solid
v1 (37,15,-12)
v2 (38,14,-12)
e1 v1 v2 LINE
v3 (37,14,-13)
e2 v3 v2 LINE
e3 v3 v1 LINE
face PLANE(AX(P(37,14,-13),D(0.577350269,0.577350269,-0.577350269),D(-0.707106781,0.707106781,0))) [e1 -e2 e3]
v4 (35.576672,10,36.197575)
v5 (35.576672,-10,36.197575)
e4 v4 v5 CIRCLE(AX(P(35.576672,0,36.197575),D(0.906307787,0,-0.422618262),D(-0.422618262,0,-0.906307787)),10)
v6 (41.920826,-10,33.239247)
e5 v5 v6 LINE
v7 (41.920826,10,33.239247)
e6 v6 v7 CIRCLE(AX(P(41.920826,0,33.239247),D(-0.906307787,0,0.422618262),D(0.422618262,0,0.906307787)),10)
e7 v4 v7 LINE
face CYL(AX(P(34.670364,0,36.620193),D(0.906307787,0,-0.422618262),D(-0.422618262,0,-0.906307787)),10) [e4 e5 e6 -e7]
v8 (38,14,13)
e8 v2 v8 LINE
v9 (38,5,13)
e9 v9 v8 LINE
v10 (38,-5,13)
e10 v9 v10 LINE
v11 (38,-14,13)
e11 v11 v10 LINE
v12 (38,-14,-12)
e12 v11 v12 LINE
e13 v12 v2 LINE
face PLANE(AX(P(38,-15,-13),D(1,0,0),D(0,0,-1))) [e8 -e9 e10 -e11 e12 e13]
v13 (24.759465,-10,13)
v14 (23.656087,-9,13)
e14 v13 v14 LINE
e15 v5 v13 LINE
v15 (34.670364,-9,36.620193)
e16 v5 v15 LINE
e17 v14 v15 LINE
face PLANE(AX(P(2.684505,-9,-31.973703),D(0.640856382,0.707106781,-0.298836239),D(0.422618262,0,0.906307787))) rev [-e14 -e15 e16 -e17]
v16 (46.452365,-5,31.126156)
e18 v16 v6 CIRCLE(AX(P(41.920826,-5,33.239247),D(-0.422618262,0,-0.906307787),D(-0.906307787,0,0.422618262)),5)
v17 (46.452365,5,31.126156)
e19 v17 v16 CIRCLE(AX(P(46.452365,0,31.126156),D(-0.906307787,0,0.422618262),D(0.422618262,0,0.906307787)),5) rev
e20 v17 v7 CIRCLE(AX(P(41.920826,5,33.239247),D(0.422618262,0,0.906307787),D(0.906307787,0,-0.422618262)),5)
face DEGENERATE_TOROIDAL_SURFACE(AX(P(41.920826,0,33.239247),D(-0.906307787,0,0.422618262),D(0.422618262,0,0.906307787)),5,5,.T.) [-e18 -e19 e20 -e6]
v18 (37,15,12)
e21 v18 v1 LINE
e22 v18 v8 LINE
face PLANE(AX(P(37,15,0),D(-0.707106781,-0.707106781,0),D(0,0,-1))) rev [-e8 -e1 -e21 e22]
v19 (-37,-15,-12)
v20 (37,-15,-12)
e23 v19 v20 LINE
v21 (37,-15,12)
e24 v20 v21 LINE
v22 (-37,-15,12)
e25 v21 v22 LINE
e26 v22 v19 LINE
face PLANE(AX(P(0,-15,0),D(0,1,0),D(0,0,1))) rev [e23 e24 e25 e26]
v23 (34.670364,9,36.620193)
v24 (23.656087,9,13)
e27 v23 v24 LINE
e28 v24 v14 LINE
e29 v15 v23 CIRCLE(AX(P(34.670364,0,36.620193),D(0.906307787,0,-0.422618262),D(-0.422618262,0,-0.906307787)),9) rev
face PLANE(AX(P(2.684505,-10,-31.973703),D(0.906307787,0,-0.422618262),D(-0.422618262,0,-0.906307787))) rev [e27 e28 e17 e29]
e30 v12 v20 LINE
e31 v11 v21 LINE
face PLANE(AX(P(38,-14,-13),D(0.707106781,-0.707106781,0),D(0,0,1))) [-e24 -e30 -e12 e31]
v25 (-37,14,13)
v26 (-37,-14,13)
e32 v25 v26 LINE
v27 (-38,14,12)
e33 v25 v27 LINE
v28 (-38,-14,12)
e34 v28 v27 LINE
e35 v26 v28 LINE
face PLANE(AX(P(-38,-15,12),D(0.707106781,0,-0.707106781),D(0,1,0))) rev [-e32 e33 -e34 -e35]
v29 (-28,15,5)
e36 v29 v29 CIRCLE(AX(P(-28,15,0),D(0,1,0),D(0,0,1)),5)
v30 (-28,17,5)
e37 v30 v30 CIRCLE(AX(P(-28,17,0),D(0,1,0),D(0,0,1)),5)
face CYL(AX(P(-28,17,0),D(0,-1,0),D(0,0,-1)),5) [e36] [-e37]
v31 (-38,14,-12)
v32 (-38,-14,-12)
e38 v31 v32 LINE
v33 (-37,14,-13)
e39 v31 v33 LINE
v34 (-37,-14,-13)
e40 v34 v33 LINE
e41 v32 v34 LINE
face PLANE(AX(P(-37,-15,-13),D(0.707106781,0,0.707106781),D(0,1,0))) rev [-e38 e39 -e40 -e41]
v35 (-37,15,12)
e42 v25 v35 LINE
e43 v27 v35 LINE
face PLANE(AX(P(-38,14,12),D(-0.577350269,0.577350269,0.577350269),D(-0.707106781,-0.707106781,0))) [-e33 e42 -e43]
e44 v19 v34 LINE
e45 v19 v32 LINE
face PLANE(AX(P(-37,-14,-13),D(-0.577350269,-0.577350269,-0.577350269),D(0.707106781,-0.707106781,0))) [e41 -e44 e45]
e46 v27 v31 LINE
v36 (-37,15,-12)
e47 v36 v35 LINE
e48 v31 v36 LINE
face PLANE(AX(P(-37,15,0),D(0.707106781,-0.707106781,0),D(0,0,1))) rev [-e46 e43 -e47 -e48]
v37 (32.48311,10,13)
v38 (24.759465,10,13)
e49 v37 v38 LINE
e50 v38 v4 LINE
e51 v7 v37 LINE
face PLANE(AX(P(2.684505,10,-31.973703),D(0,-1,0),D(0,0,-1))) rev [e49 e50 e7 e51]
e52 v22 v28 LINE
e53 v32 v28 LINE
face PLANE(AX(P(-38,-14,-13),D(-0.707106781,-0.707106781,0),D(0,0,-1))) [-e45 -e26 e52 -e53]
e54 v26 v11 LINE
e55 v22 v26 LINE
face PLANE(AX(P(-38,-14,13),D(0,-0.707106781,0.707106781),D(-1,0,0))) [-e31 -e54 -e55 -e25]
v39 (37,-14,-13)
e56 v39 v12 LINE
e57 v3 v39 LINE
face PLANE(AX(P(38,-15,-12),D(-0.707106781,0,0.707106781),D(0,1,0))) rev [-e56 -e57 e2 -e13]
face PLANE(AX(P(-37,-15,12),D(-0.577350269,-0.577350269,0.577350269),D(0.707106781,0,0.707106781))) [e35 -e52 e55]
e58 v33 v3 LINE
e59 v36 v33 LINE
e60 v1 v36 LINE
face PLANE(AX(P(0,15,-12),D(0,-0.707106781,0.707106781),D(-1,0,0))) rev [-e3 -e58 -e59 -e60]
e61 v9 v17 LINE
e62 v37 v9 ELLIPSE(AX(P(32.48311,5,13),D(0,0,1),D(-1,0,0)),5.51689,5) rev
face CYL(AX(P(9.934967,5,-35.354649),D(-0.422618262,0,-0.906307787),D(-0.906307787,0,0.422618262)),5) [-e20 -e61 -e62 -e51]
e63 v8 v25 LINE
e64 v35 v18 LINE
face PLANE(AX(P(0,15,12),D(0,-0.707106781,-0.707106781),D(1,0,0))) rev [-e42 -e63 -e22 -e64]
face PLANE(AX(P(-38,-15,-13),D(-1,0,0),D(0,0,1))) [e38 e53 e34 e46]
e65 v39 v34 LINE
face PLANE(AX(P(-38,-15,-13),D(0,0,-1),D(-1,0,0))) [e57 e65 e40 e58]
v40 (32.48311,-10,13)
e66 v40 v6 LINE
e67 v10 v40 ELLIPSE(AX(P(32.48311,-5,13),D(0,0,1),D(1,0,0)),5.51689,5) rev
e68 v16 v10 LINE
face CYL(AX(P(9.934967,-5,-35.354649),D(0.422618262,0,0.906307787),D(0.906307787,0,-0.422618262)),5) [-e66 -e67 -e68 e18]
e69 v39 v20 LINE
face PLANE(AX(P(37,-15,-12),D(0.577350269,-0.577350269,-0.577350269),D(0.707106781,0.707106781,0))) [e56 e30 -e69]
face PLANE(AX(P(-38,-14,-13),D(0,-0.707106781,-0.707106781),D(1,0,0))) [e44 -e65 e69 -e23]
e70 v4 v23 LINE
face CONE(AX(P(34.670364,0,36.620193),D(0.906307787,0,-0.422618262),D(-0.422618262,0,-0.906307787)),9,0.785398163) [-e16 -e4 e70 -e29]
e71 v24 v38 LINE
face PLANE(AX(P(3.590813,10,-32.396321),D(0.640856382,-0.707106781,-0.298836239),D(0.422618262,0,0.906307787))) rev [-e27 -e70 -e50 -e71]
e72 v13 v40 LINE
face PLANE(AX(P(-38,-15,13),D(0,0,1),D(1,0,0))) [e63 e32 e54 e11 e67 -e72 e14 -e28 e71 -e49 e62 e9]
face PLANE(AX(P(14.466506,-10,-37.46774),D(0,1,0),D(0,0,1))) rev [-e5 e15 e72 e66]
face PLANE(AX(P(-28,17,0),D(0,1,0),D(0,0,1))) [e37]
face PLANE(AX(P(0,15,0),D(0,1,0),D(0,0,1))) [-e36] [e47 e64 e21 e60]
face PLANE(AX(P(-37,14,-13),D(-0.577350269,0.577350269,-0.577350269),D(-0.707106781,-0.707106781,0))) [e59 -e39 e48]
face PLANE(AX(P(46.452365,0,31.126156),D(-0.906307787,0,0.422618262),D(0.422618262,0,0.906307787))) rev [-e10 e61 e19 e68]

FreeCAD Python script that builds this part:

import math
import FreeCAD as App
import Part
import Sketcher

V = App.Vector
Q = App.Units.Quantity


def edges_at(feature, points):
    """Names of the edges that pass closest to the given points."""
    edges = feature.Shape.Edges
    near = lambda p: min(range(len(edges)), key=lambda i: edges[i].distToShape(Part.Vertex(*p))[0])
    return sorted({f"Edge{near(p) + 1}" for p in points})

doc = App.newDocument("Part")
params = doc.addObject("Spreadsheet::Sheet", "Params")
for row, (alias, value) in enumerate([
    ("sketch1_width", "76 mm"),
    ("sketch1_height", "26 mm"),
    ("pad1_length", "15 mm"),
    ("pad1_length2", "15 mm"),
    ("sketch2_radius", "10 mm"),
    ("pad2_length", "13 mm"),
    ("sketch3_width", "13 mm"),
    ("sketch3_height", "20 mm"),
    ("fillet_radius", "5 mm"),
    ("chamfer_size", "1 mm"),
    ("sketch4_diameter", "10 mm"),
    ("pad4_length", "2 mm"),
], start=1):
    params.set(f"A{row}", alias)
    params.set(f"B{row}", "=" + value)
    params.setAlias(f"B{row}", alias)

body = doc.addObject("PartDesign::Body", "Body")

# Sketch on XZ plane
sketch1 = body.newObject("Sketcher::SketchObject", "Sketch")
sketch1.AttachmentSupport = (doc.getObject("XZ_Plane"), [""])
sketch1.MapMode = "FlatFace"
sketch1.addGeometry(Part.LineSegment(V(-38, -13, 0), V(-38, 13, 0)), False)
sketch1.addGeometry(Part.LineSegment(V(-38, 13, 0), V(38, 13, 0)), False)
sketch1.addGeometry(Part.LineSegment(V(38, 13, 0), V(38, -13, 0)), False)
sketch1.addGeometry(Part.LineSegment(V(38, -13, 0), V(-38, -13, 0)), False)
sketch1.addConstraint(Sketcher.Constraint("Coincident", 0, 2, 1, 1))
sketch1.addConstraint(Sketcher.Constraint("Coincident", 1, 2, 2, 1))
sketch1.addConstraint(Sketcher.Constraint("Coincident", 2, 2, 3, 1))
sketch1.addConstraint(Sketcher.Constraint("Coincident", 3, 2, 0, 1))
sketch1.addConstraint(Sketcher.Constraint("Vertical", 0))
sketch1.addConstraint(Sketcher.Constraint("Horizontal", 1))
sketch1.addConstraint(Sketcher.Constraint("Vertical", 2))
sketch1.addConstraint(Sketcher.Constraint("Horizontal", 3))
sketch1.addConstraint(Sketcher.Constraint("Symmetric", 0, 2, 2, 2, -1, 1))
sketch1.addConstraint(Sketcher.Constraint("DistanceX", 1, 1, 1, 2, Q("76 mm")))
sketch1.addConstraint(Sketcher.Constraint("DistanceY", 0, 1, 0, 2, Q("26 mm")))
sketch1.setExpression("Constraints[9]", "Params.sketch1_width")
sketch1.setExpression("Constraints[10]", "Params.sketch1_height")
pad1 = body.newObject("PartDesign::Pad", "Pad")
pad1.Profile = sketch1
pad1.Type = "TwoLengths"
pad1.setExpression("Length", "Params.pad1_length")
pad1.setExpression("Length2", "Params.pad1_length2")
pad1.Reversed = True
body2 = doc.addObject("PartDesign::Body", "Body001")

# Sketch on an angled plane
sketch2 = body2.newObject("Sketcher::SketchObject", "Sketch001")
sketch2.Placement = App.Placement(V(26.233676, 0, -12.232964), App.Rotation(V(0, 1, 0), V(-0.422618262, 0, -0.906307787), V(-0.906307787, 0, 0.422618262), "ZXY"))
sketch2.addGeometry(Part.LineSegment(V(10, -28, 0), V(-10, -28, 0)), False)
sketch2.addGeometry(Part.LineSegment(V(-10, -28, 0), V(-10, -48, 0)), False)
sketch2.addGeometry(Part.ArcOfCircle(Part.Circle(V(0, -48, 0), V(0, 0, 1), 10), math.radians(180), math.radians(360)), False)
sketch2.addGeometry(Part.LineSegment(V(10, -48, 0), V(10, -28, 0)), False)
sketch2.addConstraint(Sketcher.Constraint("Coincident", 0, 2, 1, 1))
sketch2.addConstraint(Sketcher.Constraint("Tangent", 1, 2, 2, 1))
sketch2.addConstraint(Sketcher.Constraint("Tangent", 2, 2, 3, 1))
sketch2.addConstraint(Sketcher.Constraint("Coincident", 3, 2, 0, 1))
sketch2.addConstraint(Sketcher.Constraint("Horizontal", 0))
sketch2.addConstraint(Sketcher.Constraint("Vertical", 1))
sketch2.addConstraint(Sketcher.Constraint("Vertical", 3))
sketch2.addConstraint(Sketcher.Constraint("PointOnObject", 2, 3, -2))
sketch2.addConstraint(Sketcher.Constraint("Equal", 0, 1))
sketch2.addConstraint(Sketcher.Constraint("Radius", 2, Q("10 mm")))
sketch2.addConstraint(Sketcher.Constraint("DistanceY", 2, 3, -1, 1, Q("47.841495 mm")))
sketch2.setExpression("Constraints[9]", "Params.sketch2_radius")
pad2 = body2.newObject("PartDesign::Pad", "Pad001")
pad2.Profile = sketch2
pad2.setExpression("Length", "Params.pad2_length")
body.AllowCompound = True
doc.recompute()

boolean = body.newObject("PartDesign::Boolean", "Boolean")
boolean.Type = "Fuse"
boolean.addObjects([body2])

# Sketch on an angled plane
sketch3 = body.newObject("Sketcher::SketchObject", "Sketch002")
sketch3.Placement = App.Placement(V(11.766324, 0, 25.232964), App.Rotation(V(-0.906307787, 0, 0.422618262), V(0, 1, 0), V(-0.422618262, 0, -0.906307787), "ZXY"))
sketch3.addGeometry(Part.LineSegment(V(-29, 10, 0), V(-29, -10, 0)), False)
sketch3.addGeometry(Part.LineSegment(V(-29, -10, 0), V(-16, -10, 0)), False)
sketch3.addGeometry(Part.LineSegment(V(-16, -10, 0), V(-16, 10, 0)), False)
sketch3.addGeometry(Part.LineSegment(V(-16, 10, 0), V(-29, 10, 0)), False)
sketch3.addConstraint(Sketcher.Constraint("Coincident", 0, 2, 1, 1))
sketch3.addConstraint(Sketcher.Constraint("Coincident", 1, 2, 2, 1))
sketch3.addConstraint(Sketcher.Constraint("Coincident", 2, 2, 3, 1))
sketch3.addConstraint(Sketcher.Constraint("Coincident", 3, 2, 0, 1))
sketch3.addConstraint(Sketcher.Constraint("Vertical", 0))
sketch3.addConstraint(Sketcher.Constraint("Horizontal", 1))
sketch3.addConstraint(Sketcher.Constraint("Vertical", 2))
sketch3.addConstraint(Sketcher.Constraint("Horizontal", 3))
sketch3.addConstraint(Sketcher.Constraint("DistanceX", 1, 1, 1, 2, Q("13 mm")))
sketch3.addConstraint(Sketcher.Constraint("DistanceY", 0, 2, 0, 1, Q("20 mm")))
sketch3.addConstraint(Sketcher.Constraint("DistanceY", 0, 2, -1, 1, Q("10 mm")))
sketch3.addConstraint(Sketcher.Constraint("DistanceX", 0, 2, -1, 1, Q("28.945659 mm")))
sketch3.setExpression("Constraints[8]", "Params.sketch3_width")
sketch3.setExpression("Constraints[9]", "Params.sketch3_height")
pad3 = body.newObject("PartDesign::Pad", "Pad002")
pad3.Profile = sketch3
pad3.Type = "UpToFirst"
doc.recompute()

fillet = body.newObject("PartDesign::Fillet", "Fillet")
fillet.Base = (pad3, edges_at(pad3, [(42.226, -10, 22.063), (50.679, 0, 40.189), (42.226, 10, 22.063)]))
fillet.setExpression("Radius", "Params.fillet_radius")
doc.recompute()

chamfer = body.newObject("PartDesign::Chamfer", "Chamfer")
chamfer.Base = (fillet, edges_at(fillet, [
    (38, 15, 0),
    (-38, -15, 0),
    (0, 15, -13),
    (-38, 15, 0),
    (0, 15, 13),
    (0, -15, 13),
    (29.163, -10, 24.81),
    (29.163, 10, 24.81),
    (38.897, 0, 45.683),
    (38, -15, 0),
    (-38, 0, 13),
    (-38, 0, -13),
    (38, 0, -13),
    (0, -15, -13),
]))
chamfer.setExpression("Size", "Params.chamfer_size")

# Sketch on XZ plane
sketch4 = body.newObject("Sketcher::SketchObject", "Sketch003")
sketch4.AttachmentSupport = (doc.getObject("XZ_Plane"), [""])
sketch4.MapMode = "FlatFace"
sketch4.AttachmentOffset = App.Placement(V(0, 0, -15), App.Rotation())
sketch4.addGeometry(Part.Circle(V(-28, 0, 0), V(0, 0, 1), 5), False)
sketch4.addConstraint(Sketcher.Constraint("PointOnObject", 0, 3, -1))
sketch4.addConstraint(Sketcher.Constraint("Diameter", 0, Q("10 mm")))
sketch4.addConstraint(Sketcher.Constraint("DistanceX", 0, 3, -1, 1, Q("28 mm")))
sketch4.setExpression("Constraints[1]", "Params.sketch4_diameter")
pad4 = body.newObject("PartDesign::Pad", "Pad003")
pad4.Profile = sketch4
pad4.setExpression("Length", "Params.pad4_length")
pad4.Reversed = True

doc.recompute()
